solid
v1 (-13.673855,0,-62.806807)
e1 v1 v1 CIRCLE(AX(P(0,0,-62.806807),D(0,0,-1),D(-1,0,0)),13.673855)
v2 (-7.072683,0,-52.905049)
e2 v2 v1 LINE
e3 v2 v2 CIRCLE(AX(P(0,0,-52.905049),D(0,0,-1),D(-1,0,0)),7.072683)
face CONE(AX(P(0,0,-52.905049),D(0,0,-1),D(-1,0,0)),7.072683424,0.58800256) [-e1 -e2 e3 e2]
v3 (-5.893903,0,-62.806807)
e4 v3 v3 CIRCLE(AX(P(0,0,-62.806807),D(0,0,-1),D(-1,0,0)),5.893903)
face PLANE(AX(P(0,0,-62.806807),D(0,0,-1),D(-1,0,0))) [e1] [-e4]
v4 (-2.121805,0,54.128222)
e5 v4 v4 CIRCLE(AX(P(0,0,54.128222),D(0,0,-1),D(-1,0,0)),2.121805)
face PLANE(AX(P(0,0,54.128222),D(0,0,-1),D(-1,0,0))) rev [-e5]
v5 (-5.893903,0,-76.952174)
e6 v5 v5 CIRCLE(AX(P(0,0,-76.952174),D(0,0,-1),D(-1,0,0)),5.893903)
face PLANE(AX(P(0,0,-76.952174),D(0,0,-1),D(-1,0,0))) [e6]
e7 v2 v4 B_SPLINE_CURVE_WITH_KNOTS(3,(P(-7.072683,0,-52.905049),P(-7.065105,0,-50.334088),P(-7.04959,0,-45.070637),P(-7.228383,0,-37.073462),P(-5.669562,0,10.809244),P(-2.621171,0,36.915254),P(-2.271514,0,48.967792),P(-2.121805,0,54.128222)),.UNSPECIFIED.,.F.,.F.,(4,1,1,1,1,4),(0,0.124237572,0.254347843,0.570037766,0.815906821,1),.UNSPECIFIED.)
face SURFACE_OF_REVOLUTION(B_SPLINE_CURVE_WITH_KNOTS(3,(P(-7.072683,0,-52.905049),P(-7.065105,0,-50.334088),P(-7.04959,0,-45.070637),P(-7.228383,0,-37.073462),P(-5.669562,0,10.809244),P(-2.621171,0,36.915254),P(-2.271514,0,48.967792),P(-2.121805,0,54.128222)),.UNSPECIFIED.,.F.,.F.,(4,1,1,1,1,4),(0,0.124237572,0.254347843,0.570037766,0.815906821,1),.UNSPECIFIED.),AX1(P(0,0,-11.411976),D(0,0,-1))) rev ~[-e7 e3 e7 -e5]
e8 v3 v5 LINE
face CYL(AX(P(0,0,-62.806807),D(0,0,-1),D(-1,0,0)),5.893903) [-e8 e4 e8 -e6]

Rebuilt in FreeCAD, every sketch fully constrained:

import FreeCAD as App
import Part
import Sketcher
from FreeCAD import Vector
Q = App.Units.Quantity

doc = App.newDocument("Part")
body = doc.addObject("PartDesign::Body", "Body")

# Sketch on XZ plane
sketch1 = body.newObject("Sketcher::SketchObject", "Sketch")
sketch1.AttachmentSupport = (doc.getObject("XZ_Plane"), [""])
sketch1.MapMode = "FlatFace"
sketch1.addGeometry([
    Part.LineSegment(Vector(-5.893903, -62.806807, 0), Vector(-5.893903, -76.952174, 0)),  # 0
    Part.LineSegment(Vector(-5.893903, -76.952174, 0), Vector(0, -76.952174, 0)),  # 1
    Part.LineSegment(Vector(0, -76.952174, 0), Vector(0, 54.128222, 0)),  # 2
    Part.LineSegment(Vector(0, 54.128222, 0), Vector(-2.121805, 54.128222, 0)),  # 3
    Part.BSplineCurve([Vector(-7.072683, -52.905049, 0), Vector(-7.065105, -50.334088, 0), Vector(-7.04959, -45.070637, 0), Vector(-7.228383, -37.073462, 0), Vector(-5.669562, 10.809244, 0), Vector(-2.621171, 36.915254, 0), Vector(-2.271514, 48.967792, 0), Vector(-2.121805, 54.128222, 0)], [4, 1, 1, 1, 1, 4], [0, 0.124237572, 0.254347843, 0.570037766, 0.815906821, 1], False, 3, [1, 1, 1, 1, 1, 1, 1, 1], False),  # 4
    Part.LineSegment(Vector(-7.072683, -52.905049, 0), Vector(-13.673855, -62.806807, 0)),  # 5
    Part.LineSegment(Vector(-13.673855, -62.806807, 0), Vector(-5.893903, -62.806807, 0)),  # 6
], False)
sketch1.addConstraint([
    Sketcher.Constraint("Block", 4),
    Sketcher.Constraint("Coincident", 0, 2, 1, 1),
    Sketcher.Constraint("Coincident", 1, 2, 2, 1),
    Sketcher.Constraint("Coincident", 2, 2, 3, 1),
    Sketcher.Constraint("Coincident", 3, 2, 4, 2),
    Sketcher.Constraint("Coincident", 4, 1, 5, 1),
    Sketcher.Constraint("Coincident", 5, 2, 6, 1),
    Sketcher.Constraint("Coincident", 6, 2, 0, 1),
    Sketcher.Constraint("Vertical", 0),
    Sketcher.Constraint("Horizontal", 1),
    Sketcher.Constraint("Vertical", 2),
    Sketcher.Constraint("Horizontal", 3),
    Sketcher.Constraint("Horizontal", 6),
    Sketcher.Constraint("PointOnObject", 1, 2, -2),
    Sketcher.Constraint("DistanceX", 6, 1, 6, 2, Q("7.779952 mm")),
    Sketcher.Constraint("DistanceX", 0, 2, 3, 2, Q("3.772099 mm")),
    Sketcher.Constraint("DistanceY", 0, 2, 0, 1, Q("14.145367 mm")),
    Sketcher.Constraint("DistanceY", 2, 1, 2, 2, Q("131.080396 mm")),
])
revolution = body.newObject("PartDesign::Revolution", "Revolution")
revolution.Profile = sketch1
revolution.ReferenceAxis = (sketch1, ["V_Axis"])
revolution.Angle = 360

doc.recompute()
